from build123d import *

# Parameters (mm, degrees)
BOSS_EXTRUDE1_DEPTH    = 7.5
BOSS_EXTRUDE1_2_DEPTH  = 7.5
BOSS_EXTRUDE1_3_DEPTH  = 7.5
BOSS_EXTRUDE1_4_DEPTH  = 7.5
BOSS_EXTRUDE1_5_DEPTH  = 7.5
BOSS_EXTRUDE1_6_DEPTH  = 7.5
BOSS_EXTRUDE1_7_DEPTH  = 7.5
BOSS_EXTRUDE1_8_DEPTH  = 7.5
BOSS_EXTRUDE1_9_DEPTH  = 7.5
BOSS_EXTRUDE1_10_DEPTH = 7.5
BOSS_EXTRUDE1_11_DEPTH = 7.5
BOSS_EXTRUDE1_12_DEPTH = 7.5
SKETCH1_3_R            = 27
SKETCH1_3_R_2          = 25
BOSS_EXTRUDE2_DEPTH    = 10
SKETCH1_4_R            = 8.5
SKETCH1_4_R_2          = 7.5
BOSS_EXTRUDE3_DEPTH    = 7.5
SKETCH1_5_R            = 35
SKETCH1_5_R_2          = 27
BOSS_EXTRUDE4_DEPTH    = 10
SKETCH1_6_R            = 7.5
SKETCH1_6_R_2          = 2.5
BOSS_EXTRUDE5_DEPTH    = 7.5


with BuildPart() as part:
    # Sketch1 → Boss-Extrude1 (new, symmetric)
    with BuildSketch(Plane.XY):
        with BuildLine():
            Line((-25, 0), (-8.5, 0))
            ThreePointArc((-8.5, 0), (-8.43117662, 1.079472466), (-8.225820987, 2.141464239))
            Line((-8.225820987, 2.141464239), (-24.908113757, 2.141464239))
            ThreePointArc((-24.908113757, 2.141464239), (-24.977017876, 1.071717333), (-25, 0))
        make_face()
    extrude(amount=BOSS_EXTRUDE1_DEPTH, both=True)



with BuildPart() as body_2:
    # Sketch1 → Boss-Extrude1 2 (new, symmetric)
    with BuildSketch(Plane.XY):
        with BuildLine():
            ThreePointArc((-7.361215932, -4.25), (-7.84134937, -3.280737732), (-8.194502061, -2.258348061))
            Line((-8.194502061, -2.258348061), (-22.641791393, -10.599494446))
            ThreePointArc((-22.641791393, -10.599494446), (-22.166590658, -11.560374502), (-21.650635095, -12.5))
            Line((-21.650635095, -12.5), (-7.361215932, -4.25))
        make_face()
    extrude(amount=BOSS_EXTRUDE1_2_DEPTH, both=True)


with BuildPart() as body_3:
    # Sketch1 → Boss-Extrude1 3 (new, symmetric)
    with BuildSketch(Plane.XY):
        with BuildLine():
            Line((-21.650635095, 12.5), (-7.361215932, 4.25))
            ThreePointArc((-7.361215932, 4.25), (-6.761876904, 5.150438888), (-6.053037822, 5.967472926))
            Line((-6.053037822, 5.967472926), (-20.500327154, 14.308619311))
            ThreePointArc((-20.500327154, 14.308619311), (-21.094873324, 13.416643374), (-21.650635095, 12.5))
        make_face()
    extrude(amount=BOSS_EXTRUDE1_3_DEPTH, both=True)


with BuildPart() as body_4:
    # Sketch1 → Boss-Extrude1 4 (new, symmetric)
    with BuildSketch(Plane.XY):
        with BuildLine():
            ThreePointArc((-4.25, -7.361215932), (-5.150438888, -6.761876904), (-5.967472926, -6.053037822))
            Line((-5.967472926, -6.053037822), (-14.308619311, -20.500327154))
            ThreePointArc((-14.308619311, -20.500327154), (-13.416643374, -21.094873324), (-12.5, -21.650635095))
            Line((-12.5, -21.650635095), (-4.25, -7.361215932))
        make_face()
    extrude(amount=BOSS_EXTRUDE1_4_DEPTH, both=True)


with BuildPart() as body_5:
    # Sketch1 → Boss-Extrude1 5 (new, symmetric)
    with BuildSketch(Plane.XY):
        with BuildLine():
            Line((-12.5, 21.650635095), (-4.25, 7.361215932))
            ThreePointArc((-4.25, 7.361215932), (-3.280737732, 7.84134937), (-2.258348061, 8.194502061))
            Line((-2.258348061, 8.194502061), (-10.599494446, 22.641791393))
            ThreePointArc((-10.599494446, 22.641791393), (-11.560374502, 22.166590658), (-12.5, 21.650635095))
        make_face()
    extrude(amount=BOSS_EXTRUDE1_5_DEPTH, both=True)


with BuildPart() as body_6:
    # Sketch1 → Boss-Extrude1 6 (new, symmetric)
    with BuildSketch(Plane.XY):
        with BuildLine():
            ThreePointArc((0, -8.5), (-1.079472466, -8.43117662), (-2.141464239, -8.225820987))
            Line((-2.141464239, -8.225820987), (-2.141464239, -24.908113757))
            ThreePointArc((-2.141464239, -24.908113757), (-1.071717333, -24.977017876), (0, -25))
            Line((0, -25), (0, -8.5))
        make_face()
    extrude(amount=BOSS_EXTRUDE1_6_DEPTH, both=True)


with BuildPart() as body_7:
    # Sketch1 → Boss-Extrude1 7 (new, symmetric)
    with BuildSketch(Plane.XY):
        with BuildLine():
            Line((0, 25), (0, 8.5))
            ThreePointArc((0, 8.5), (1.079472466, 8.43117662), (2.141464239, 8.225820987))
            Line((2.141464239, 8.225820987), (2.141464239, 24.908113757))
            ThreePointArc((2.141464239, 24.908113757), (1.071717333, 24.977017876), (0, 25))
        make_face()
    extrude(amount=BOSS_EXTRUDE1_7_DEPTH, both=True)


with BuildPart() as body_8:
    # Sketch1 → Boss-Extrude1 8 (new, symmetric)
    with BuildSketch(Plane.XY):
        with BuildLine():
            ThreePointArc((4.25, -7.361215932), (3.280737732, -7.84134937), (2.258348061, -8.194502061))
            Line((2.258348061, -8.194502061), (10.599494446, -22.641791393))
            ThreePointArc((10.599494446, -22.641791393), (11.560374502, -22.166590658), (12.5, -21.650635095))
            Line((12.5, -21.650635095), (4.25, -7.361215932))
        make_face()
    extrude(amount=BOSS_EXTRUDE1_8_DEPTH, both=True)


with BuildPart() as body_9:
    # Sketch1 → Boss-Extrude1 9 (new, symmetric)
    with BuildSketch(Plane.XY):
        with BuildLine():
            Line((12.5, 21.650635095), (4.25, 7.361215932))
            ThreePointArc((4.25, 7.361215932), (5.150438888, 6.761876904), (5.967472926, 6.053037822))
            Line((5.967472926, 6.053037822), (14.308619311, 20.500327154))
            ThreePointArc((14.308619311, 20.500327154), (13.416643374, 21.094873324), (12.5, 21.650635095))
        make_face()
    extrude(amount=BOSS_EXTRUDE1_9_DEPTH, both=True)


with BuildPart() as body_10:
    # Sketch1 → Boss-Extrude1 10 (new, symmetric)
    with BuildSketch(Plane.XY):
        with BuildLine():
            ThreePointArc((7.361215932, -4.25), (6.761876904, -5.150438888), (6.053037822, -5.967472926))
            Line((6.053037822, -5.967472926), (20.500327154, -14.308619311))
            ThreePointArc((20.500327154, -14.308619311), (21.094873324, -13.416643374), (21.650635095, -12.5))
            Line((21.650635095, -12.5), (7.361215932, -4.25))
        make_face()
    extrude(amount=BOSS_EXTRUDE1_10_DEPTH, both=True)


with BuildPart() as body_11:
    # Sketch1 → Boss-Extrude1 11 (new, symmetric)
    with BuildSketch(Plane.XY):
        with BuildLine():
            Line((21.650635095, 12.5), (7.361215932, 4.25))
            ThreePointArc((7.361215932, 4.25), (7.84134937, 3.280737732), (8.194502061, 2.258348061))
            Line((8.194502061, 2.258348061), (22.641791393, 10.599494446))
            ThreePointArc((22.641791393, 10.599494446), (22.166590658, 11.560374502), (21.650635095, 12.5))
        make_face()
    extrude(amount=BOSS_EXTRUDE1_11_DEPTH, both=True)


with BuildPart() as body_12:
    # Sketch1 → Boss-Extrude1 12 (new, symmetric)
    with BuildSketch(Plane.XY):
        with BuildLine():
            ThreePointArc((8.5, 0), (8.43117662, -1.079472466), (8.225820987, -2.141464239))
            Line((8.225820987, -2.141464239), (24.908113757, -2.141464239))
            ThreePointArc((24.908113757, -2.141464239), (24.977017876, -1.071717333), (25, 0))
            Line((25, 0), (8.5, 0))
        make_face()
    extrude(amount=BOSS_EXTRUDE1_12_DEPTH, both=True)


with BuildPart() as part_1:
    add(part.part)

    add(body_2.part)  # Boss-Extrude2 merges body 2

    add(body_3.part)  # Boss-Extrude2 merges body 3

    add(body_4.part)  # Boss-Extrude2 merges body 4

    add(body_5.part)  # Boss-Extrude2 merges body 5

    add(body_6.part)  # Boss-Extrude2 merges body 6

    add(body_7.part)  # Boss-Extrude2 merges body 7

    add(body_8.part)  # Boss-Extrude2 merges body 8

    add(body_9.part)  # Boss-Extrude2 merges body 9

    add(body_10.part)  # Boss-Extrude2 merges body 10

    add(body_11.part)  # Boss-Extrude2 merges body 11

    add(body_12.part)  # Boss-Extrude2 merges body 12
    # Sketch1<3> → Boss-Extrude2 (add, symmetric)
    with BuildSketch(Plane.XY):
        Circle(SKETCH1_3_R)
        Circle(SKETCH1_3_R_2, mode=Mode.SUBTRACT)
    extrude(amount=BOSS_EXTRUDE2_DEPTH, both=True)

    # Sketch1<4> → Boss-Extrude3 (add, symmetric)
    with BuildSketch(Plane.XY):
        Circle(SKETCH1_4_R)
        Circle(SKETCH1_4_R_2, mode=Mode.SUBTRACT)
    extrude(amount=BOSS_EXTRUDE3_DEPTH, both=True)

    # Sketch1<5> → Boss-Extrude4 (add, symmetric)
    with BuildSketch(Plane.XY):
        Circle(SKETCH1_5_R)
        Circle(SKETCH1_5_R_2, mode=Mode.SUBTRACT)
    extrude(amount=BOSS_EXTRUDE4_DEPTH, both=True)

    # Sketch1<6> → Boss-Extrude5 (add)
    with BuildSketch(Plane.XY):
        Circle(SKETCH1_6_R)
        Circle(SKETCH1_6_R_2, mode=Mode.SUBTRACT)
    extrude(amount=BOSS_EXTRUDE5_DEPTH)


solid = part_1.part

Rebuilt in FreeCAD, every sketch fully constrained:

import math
import FreeCAD as App
import Part
import Sketcher
Q = App.Units.Quantity

doc = App.newDocument("Part")
params = doc.addObject("Spreadsheet::Sheet", "Params")
for row, (alias, value) in enumerate([
    ("sketch1_radius", "25 mm"),
    ("sketch1_radius2", "8.5 mm"),
    ("pad1_length", "15 mm"),
    ("sketch2_radius", "25 mm"),
    ("sketch2_radius2", "8.5 mm"),
    ("pad2_length", "15 mm"),
    ("sketch3_radius", "25.000001 mm"),
    ("sketch3_radius2", "8.5 mm"),
    ("pad3_length", "15 mm"),
    ("sketch4_radius", "25.000001 mm"),
    ("sketch4_radius2", "8.5 mm"),
    ("pad4_length", "15 mm"),
    ("sketch5_radius", "25 mm"),
    ("sketch5_radius2", "8.5 mm"),
    ("pad5_length", "15 mm"),
    ("sketch6_radius", "25 mm"),
    ("sketch6_radius2", "8.5 mm"),
    ("pad6_length", "15 mm"),
    ("sketch7_radius", "25 mm"),
    ("sketch7_radius2", "8.5 mm"),
    ("pad7_length", "15 mm"),
    ("sketch8_radius", "25 mm"),
    ("sketch8_radius2", "8.5 mm"),
    ("pad8_length", "15 mm"),
    ("sketch9_radius", "25.000001 mm"),
    ("sketch9_radius2", "8.5 mm"),
    ("pad9_length", "15 mm"),
    ("sketch10_radius", "25.000001 mm"),
    ("sketch10_radius2", "8.5 mm"),
    ("pad10_length", "15 mm"),
    ("sketch11_radius", "25 mm"),
    ("sketch11_radius2", "8.5 mm"),
    ("pad11_length", "15 mm"),
    ("sketch12_radius", "25 mm"),
    ("sketch12_radius2", "8.5 mm"),
    ("pad12_length", "15 mm"),
    ("sketch13_diameter", "54 mm"),
    ("sketch13_diameter2", "50 mm"),
    ("pad13_length", "20 mm"),
    ("sketch14_diameter", "17 mm"),
    ("sketch14_diameter2", "15 mm"),
    ("pad14_length", "15 mm"),
    ("sketch15_diameter", "70 mm"),
    ("sketch15_diameter2", "54 mm"),
    ("pad15_length", "20 mm"),
    ("sketch16_diameter", "15 mm"),
    ("sketch16_diameter2", "5 mm"),
    ("pad16_length", "7.5 mm"),
], start=1):
    params.set(f"A{row}", alias)
    params.set(f"B{row}", "=" + value)
    params.setAlias(f"B{row}", alias)

body = doc.addObject("PartDesign::Body", "Body")

sketch1 = doc.addObject("Sketcher::SketchObject", "Sketch")
body.addObject(sketch1)
sketch1.AttachmentSupport = (doc.XY_Plane, [""])
sketch1.MapMode = "FlatFace"
sketch1.addGeometry([
    Part.LineSegment(App.Vector(-25, 0, 0), App.Vector(-8.5, 0, 0)),
    Part.ArcOfCircle(Part.Circle(App.Vector(0, 0, 0), App.Vector(0, 0, 1), 8.5), math.radians(165.41), math.radians(180)),
    Part.LineSegment(App.Vector(-8.2, 2.1, 0), App.Vector(-24.9, 2.1, 0)),
    Part.ArcOfCircle(Part.Circle(App.Vector(0, 0, 0), App.Vector(0, 0, 1), 25), math.radians(175.09), math.radians(180)),
], False)
sketch1.addConstraint([
    Sketcher.Constraint("Coincident", 0, 2, 1, 2),
    Sketcher.Constraint("Coincident", 1, 1, 2, 1),
    Sketcher.Constraint("Coincident", 2, 2, 3, 1),
    Sketcher.Constraint("Coincident", 3, 2, 0, 1),
    Sketcher.Constraint("Horizontal", 0),
    Sketcher.Constraint("Horizontal", 2),
    Sketcher.Constraint("Coincident", 1, 3, -1, 1),
    Sketcher.Constraint("Coincident", 3, 3, -1, 1),
    Sketcher.Constraint("PointOnObject", 0, 2, -1),
    Sketcher.Constraint("Radius", 3, Q("25 mm")),
    Sketcher.Constraint("Radius", 1, Q("8.5 mm")),
    Sketcher.Constraint("DistanceX", 2, 2, 2, 1, Q("16.682293 mm")),
])
sketch1.setExpression("Constraints[9]", "Params.sketch1_radius")
sketch1.setExpression("Constraints[10]", "Params.sketch1_radius2")
pad1 = doc.addObject("PartDesign::Pad", "Pad")
body.addObject(pad1)
pad1.Profile = sketch1
pad1.setExpression("Length", "Params.pad1_length")
pad1.Midplane = True
body2 = doc.addObject("PartDesign::Body", "Body001")

sketch2 = doc.addObject("Sketcher::SketchObject", "Sketch001")
body2.addObject(sketch2)
sketch2.AttachmentSupport = (doc.getObject("XY_Plane001"), [""])
sketch2.MapMode = "FlatFace"
sketch2.addGeometry([
    Part.ArcOfCircle(Part.Circle(App.Vector(0, 0, 0), App.Vector(0, 0, 1), 8.5), math.radians(-164.59), math.radians(-150)),
    Part.LineSegment(App.Vector(-8.2, -2.3, 0), App.Vector(-22.6, -10.6, 0)),
    Part.ArcOfCircle(Part.Circle(App.Vector(0, 0, 0), App.Vector(0, 0, 1), 25), math.radians(-154.91), math.radians(-150)),
    Part.LineSegment(App.Vector(-21.7, -12.5, 0), App.Vector(-7.4, -4.2, 0)),
], False)
sketch2.addConstraint([
    Sketcher.Constraint("Coincident", 0, 1, 1, 1),
    Sketcher.Constraint("Coincident", 1, 2, 2, 1),
    Sketcher.Constraint("Coincident", 2, 2, 3, 1),
    Sketcher.Constraint("Coincident", 3, 2, 0, 2),
    Sketcher.Constraint("Coincident", 0, 3, -1, 1),
    Sketcher.Constraint("Coincident", 2, 3, -1, 1),
    Sketcher.Constraint("Parallel", 1, 3),
    Sketcher.Constraint("Radius", 2, Q("25 mm")),
    Sketcher.Constraint("Radius", 0, Q("8.5 mm")),
    Sketcher.Constraint("Angle", 1, Q("-150 deg")),
    Sketcher.Constraint("DistanceY", 2, 2, -1, 1, Q("12.5 mm")),
    Sketcher.Constraint("DistanceX", 0, 1, 2, 3, Q("8.194502 mm")),
])
sketch2.setExpression("Constraints[7]", "Params.sketch2_radius")
sketch2.setExpression("Constraints[8]", "Params.sketch2_radius2")
pad2 = doc.addObject("PartDesign::Pad", "Pad001")
body2.addObject(pad2)
pad2.Profile = sketch2
pad2.setExpression("Length", "Params.pad2_length")
pad2.Midplane = True
body3 = doc.addObject("PartDesign::Body", "Body002")

sketch3 = doc.addObject("Sketcher::SketchObject", "Sketch002")
body3.addObject(sketch3)
sketch3.AttachmentSupport = (doc.getObject("XY_Plane002"), [""])
sketch3.MapMode = "FlatFace"
sketch3.addGeometry([
    Part.LineSegment(App.Vector(-21.7, 12.5, 0), App.Vector(-7.4, 4.2, 0)),
    Part.ArcOfCircle(Part.Circle(App.Vector(0, 0, 0), App.Vector(0, 0, 1), 8.5), math.radians(135.41), math.radians(150)),
    Part.LineSegment(App.Vector(-6.1, 6, 0), App.Vector(-20.5, 14.3, 0)),
    Part.ArcOfCircle(Part.Circle(App.Vector(0, 0, 0), App.Vector(0, 0, 1), 25), math.radians(145.09), math.radians(150)),
], False)
sketch3.addConstraint([
    Sketcher.Constraint("Coincident", 0, 2, 1, 2),
    Sketcher.Constraint("Coincident", 1, 1, 2, 1),
    Sketcher.Constraint("Coincident", 2, 2, 3, 1),
    Sketcher.Constraint("Coincident", 3, 2, 0, 1),
    Sketcher.Constraint("Coincident", 1, 3, -1, 1),
    Sketcher.Constraint("Coincident", 3, 3, -1, 1),
    Sketcher.Constraint("Parallel", 0, 2),
    Sketcher.Constraint("Radius", 3, Q("25.000001 mm")),
    Sketcher.Constraint("Radius", 1, Q("8.5 mm")),
    Sketcher.Constraint("Angle", 0, Q("-30 deg")),
    Sketcher.Constraint("DistanceY", -1, 1, 3, 2, Q("12.5 mm")),
    Sketcher.Constraint("DistanceY", -1, 1, 2, 2, Q("14.308619 mm")),
])
sketch3.setExpression("Constraints[7]", "Params.sketch3_radius")
sketch3.setExpression("Constraints[8]", "Params.sketch3_radius2")
pad3 = doc.addObject("PartDesign::Pad", "Pad002")
body3.addObject(pad3)
pad3.Profile = sketch3
pad3.setExpression("Length", "Params.pad3_length")
pad3.Midplane = True
body4 = doc.addObject("PartDesign::Body", "Body003")

sketch4 = doc.addObject("Sketcher::SketchObject", "Sketch003")
body4.addObject(sketch4)
sketch4.AttachmentSupport = (doc.getObject("XY_Plane003"), [""])
sketch4.MapMode = "FlatFace"
sketch4.addGeometry([
    Part.ArcOfCircle(Part.Circle(App.Vector(0, 0, 0), App.Vector(0, 0, 1), 8.5), math.radians(-134.59), math.radians(-120)),
    Part.LineSegment(App.Vector(-6, -6.1, 0), App.Vector(-14.3, -20.5, 0)),
    Part.ArcOfCircle(Part.Circle(App.Vector(0, 0, 0), App.Vector(0, 0, 1), 25), math.radians(-124.91), math.radians(-120)),
    Part.LineSegment(App.Vector(-12.5, -21.7, 0), App.Vector(-4.2, -7.4, 0)),
], False)
sketch4.addConstraint([
    Sketcher.Constraint("Coincident", 0, 1, 1, 1),
    Sketcher.Constraint("Coincident", 1, 2, 2, 1),
    Sketcher.Constraint("Coincident", 2, 2, 3, 1),
    Sketcher.Constraint("Coincident", 3, 2, 0, 2),
    Sketcher.Constraint("Coincident", 0, 3, -1, 1),
    Sketcher.Constraint("Coincident", 2, 3, -1, 1),
    Sketcher.Constraint("Parallel", 1, 3),
    Sketcher.Constraint("Radius", 2, Q("25.000001 mm")),
    Sketcher.Constraint("Radius", 0, Q("8.5 mm")),
    Sketcher.Constraint("Angle", 1, Q("-120 deg")),
    Sketcher.Constraint("DistanceX", 2, 2, -1, 1, Q("12.5 mm")),
    Sketcher.Constraint("DistanceX", 1, 2, -1, 1, Q("14.308619 mm")),
])
sketch4.setExpression("Constraints[7]", "Params.sketch4_radius")
sketch4.setExpression("Constraints[8]", "Params.sketch4_radius2")
pad4 = doc.addObject("PartDesign::Pad", "Pad003")
body4.addObject(pad4)
pad4.Profile = sketch4
pad4.setExpression("Length", "Params.pad4_length")
pad4.Midplane = True
body5 = doc.addObject("PartDesign::Body", "Body004")

sketch5 = doc.addObject("Sketcher::SketchObject", "Sketch004")
body5.addObject(sketch5)
sketch5.AttachmentSupport = (doc.getObject("XY_Plane004"), [""])
sketch5.MapMode = "FlatFace"
sketch5.addGeometry([
    Part.LineSegment(App.Vector(-12.5, 21.7, 0), App.Vector(-4.2, 7.4, 0)),
    Part.ArcOfCircle(Part.Circle(App.Vector(0, 0, 0), App.Vector(0, 0, 1), 8.5), math.radians(105.41), math.radians(120)),
    Part.LineSegment(App.Vector(-2.3, 8.2, 0), App.Vector(-10.6, 22.6, 0)),
    Part.ArcOfCircle(Part.Circle(App.Vector(0, 0, 0), App.Vector(0, 0, 1), 25), math.radians(115.09), math.radians(120)),
], False)
sketch5.addConstraint([
    Sketcher.Constraint("Coincident", 0, 2, 1, 2),
    Sketcher.Constraint("Coincident", 1, 1, 2, 1),
    Sketcher.Constraint("Coincident", 2, 2, 3, 1),
    Sketcher.Constraint("Coincident", 3, 2, 0, 1),
    Sketcher.Constraint("Coincident", 1, 3, -1, 1),
    Sketcher.Constraint("Coincident", 3, 3, -1, 1),
    Sketcher.Constraint("Parallel", 0, 2),
    Sketcher.Constraint("Radius", 3, Q("25 mm")),
    Sketcher.Constraint("Radius", 1, Q("8.5 mm")),
    Sketcher.Constraint("Angle", 0, Q("-60 deg")),
    Sketcher.Constraint("DistanceX", 3, 2, -1, 1, Q("12.5 mm")),
    Sketcher.Constraint("DistanceY", 3, 3, 1, 1, Q("8.194502 mm")),
])
sketch5.setExpression("Constraints[7]", "Params.sketch5_radius")
sketch5.setExpression("Constraints[8]", "Params.sketch5_radius2")
pad5 = doc.addObject("PartDesign::Pad", "Pad004")
body5.addObject(pad5)
pad5.Profile = sketch5
pad5.setExpression("Length", "Params.pad5_length")
pad5.Midplane = True
body6 = doc.addObject("PartDesign::Body", "Body005")

sketch6 = doc.addObject("Sketcher::SketchObject", "Sketch005")
body6.addObject(sketch6)
sketch6.AttachmentSupport = (doc.getObject("XY_Plane005"), [""])
sketch6.MapMode = "FlatFace"
sketch6.addGeometry([
    Part.ArcOfCircle(Part.Circle(App.Vector(0, 0, 0), App.Vector(0, 0, 1), 8.5), math.radians(-104.59), math.radians(-90)),
    Part.LineSegment(App.Vector(-2.1, -8.2, 0), App.Vector(-2.1, -24.9, 0)),
    Part.ArcOfCircle(Part.Circle(App.Vector(0, 0, 0), App.Vector(0, 0, 1), 25), math.radians(-94.91), math.radians(-90)),
    Part.LineSegment(App.Vector(0, -25, 0), App.Vector(0, -8.5, 0)),
], False)
sketch6.addConstraint([
    Sketcher.Constraint("Coincident", 0, 1, 1, 1),
    Sketcher.Constraint("Coincident", 1, 2, 2, 1),
    Sketcher.Constraint("Coincident", 2, 2, 3, 1),
    Sketcher.Constraint("Coincident", 3, 2, 0, 2),
    Sketcher.Constraint("Vertical", 1),
    Sketcher.Constraint("Vertical", 3),
    Sketcher.Constraint("Coincident", 0, 3, -1, 1),
    Sketcher.Constraint("Coincident", 2, 3, -1, 1),
    Sketcher.Constraint("PointOnObject", 2, 2, -2),
    Sketcher.Constraint("Radius", 2, Q("25 mm")),
    Sketcher.Constraint("Radius", 0, Q("8.5 mm")),
    Sketcher.Constraint("DistanceY", 1, 2, 1, 1, Q("16.682293 mm")),
])
sketch6.setExpression("Constraints[9]", "Params.sketch6_radius")
sketch6.setExpression("Constraints[10]", "Params.sketch6_radius2")
pad6 = doc.addObject("PartDesign::Pad", "Pad005")
body6.addObject(pad6)
pad6.Profile = sketch6
pad6.setExpression("Length", "Params.pad6_length")
pad6.Midplane = True
body7 = doc.addObject("PartDesign::Body", "Body006")

sketch7 = doc.addObject("Sketcher::SketchObject", "Sketch006")
body7.addObject(sketch7)
sketch7.AttachmentSupport = (doc.getObject("XY_Plane006"), [""])
sketch7.MapMode = "FlatFace"
sketch7.addGeometry([
    Part.LineSegment(App.Vector(0, 25, 0), App.Vector(0, 8.5, 0)),
    Part.ArcOfCircle(Part.Circle(App.Vector(0, 0, 0), App.Vector(0, 0, 1), 8.5), math.radians(75.41), math.radians(90)),
    Part.LineSegment(App.Vector(2.1, 8.2, 0), App.Vector(2.1, 24.9, 0)),
    Part.ArcOfCircle(Part.Circle(App.Vector(0, 0, 0), App.Vector(0, 0, 1), 25), math.radians(85.09), math.radians(90)),
], False)
sketch7.addConstraint([
    Sketcher.Constraint("Coincident", 0, 2, 1, 2),
    Sketcher.Constraint("Coincident", 1, 1, 2, 1),
    Sketcher.Constraint("Coincident", 2, 2, 3, 1),
    Sketcher.Constraint("Coincident", 3, 2, 0, 1),
    Sketcher.Constraint("Vertical", 0),
    Sketcher.Constraint("Vertical", 2),
    Sketcher.Constraint("Coincident", 1, 3, -1, 1),
    Sketcher.Constraint("Coincident", 3, 3, -1, 1),
    Sketcher.Constraint("PointOnObject", 0, 2, -2),
    Sketcher.Constraint("Radius", 3, Q("25 mm")),
    Sketcher.Constraint("Radius", 1, Q("8.5 mm")),
    Sketcher.Constraint("DistanceY", 2, 1, 2, 2, Q("16.682293 mm")),
])
sketch7.setExpression("Constraints[9]", "Params.sketch7_radius")
sketch7.setExpression("Constraints[10]", "Params.sketch7_radius2")
pad7 = doc.addObject("PartDesign::Pad", "Pad006")
body7.addObject(pad7)
pad7.Profile = sketch7
pad7.setExpression("Length", "Params.pad7_length")
pad7.Midplane = True
body8 = doc.addObject("PartDesign::Body", "Body007")

sketch8 = doc.addObject("Sketcher::SketchObject", "Sketch007")
body8.addObject(sketch8)
sketch8.AttachmentSupport = (doc.getObject("XY_Plane007"), [""])
sketch8.MapMode = "FlatFace"
sketch8.addGeometry([
    Part.ArcOfCircle(Part.Circle(App.Vector(0, 0, 0), App.Vector(0, 0, 1), 8.5), math.radians(-74.59), math.radians(-60)),
    Part.LineSegment(App.Vector(2.3, -8.2, 0), App.Vector(10.6, -22.6, 0)),
    Part.ArcOfCircle(Part.Circle(App.Vector(0, 0, 0), App.Vector(0, 0, 1), 25), math.radians(-64.91), math.radians(-60)),
    Part.LineSegment(App.Vector(12.5, -21.7, 0), App.Vector(4.2, -7.4, 0)),
], False)
sketch8.addConstraint([
    Sketcher.Constraint("Coincident", 0, 1, 1, 1),
    Sketcher.Constraint("Coincident", 1, 2, 2, 1),
    Sketcher.Constraint("Coincident", 2, 2, 3, 1),
    Sketcher.Constraint("Coincident", 3, 2, 0, 2),
    Sketcher.Constraint("Coincident", 0, 3, -1, 1),
    Sketcher.Constraint("Coincident", 2, 3, -1, 1),
    Sketcher.Constraint("Parallel", 1, 3),
    Sketcher.Constraint("Radius", 2, Q("25 mm")),
    Sketcher.Constraint("Radius", 0, Q("8.5 mm")),
    Sketcher.Constraint("Angle", 1, Q("-60 deg")),
    Sketcher.Constraint("DistanceX", -1, 1, 2, 2, Q("12.5 mm")),
    Sketcher.Constraint("DistanceY", 0, 1, 2, 3, Q("8.194502 mm")),
])
sketch8.setExpression("Constraints[7]", "Params.sketch8_radius")
sketch8.setExpression("Constraints[8]", "Params.sketch8_radius2")
pad8 = doc.addObject("PartDesign::Pad", "Pad007")
body8.addObject(pad8)
pad8.Profile = sketch8
pad8.setExpression("Length", "Params.pad8_length")
pad8.Midplane = True
body9 = doc.addObject("PartDesign::Body", "Body008")

sketch9 = doc.addObject("Sketcher::SketchObject", "Sketch008")
body9.addObject(sketch9)
sketch9.AttachmentSupport = (doc.getObject("XY_Plane008"), [""])
sketch9.MapMode = "FlatFace"
sketch9.addGeometry([
    Part.LineSegment(App.Vector(12.5, 21.7, 0), App.Vector(4.2, 7.4, 0)),
    Part.ArcOfCircle(Part.Circle(App.Vector(0, 0, 0), App.Vector(0, 0, 1), 8.5), math.radians(45.41), math.radians(60)),
    Part.LineSegment(App.Vector(6, 6.1, 0), App.Vector(14.3, 20.5, 0)),
    Part.ArcOfCircle(Part.Circle(App.Vector(0, 0, 0), App.Vector(0, 0, 1), 25), math.radians(55.09), math.radians(60)),
], False)
sketch9.addConstraint([
    Sketcher.Constraint("Coincident", 0, 2, 1, 2),
    Sketcher.Constraint("Coincident", 1, 1, 2, 1),
    Sketcher.Constraint("Coincident", 2, 2, 3, 1),
    Sketcher.Constraint("Coincident", 3, 2, 0, 1),
    Sketcher.Constraint("Coincident", 1, 3, -1, 1),
    Sketcher.Constraint("Coincident", 3, 3, -1, 1),
    Sketcher.Constraint("Parallel", 0, 2),
    Sketcher.Constraint("Radius", 3, Q("25.000001 mm")),
    Sketcher.Constraint("Radius", 1, Q("8.5 mm")),
    Sketcher.Constraint("Angle", 0, Q("-120 deg")),
    Sketcher.Constraint("DistanceX", -1, 1, 3, 2, Q("12.5 mm")),
    Sketcher.Constraint("DistanceX", -1, 1, 2, 2, Q("14.308619 mm")),
])
sketch9.setExpression("Constraints[7]", "Params.sketch9_radius")
sketch9.setExpression("Constraints[8]", "Params.sketch9_radius2")
pad9 = doc.addObject("PartDesign::Pad", "Pad008")
body9.addObject(pad9)
pad9.Profile = sketch9
pad9.setExpression("Length", "Params.pad9_length")
pad9.Midplane = True
body10 = doc.addObject("PartDesign::Body", "Body009")

sketch10 = doc.addObject("Sketcher::SketchObject", "Sketch009")
body10.addObject(sketch10)
sketch10.AttachmentSupport = (doc.getObject("XY_Plane009"), [""])
sketch10.MapMode = "FlatFace"
sketch10.addGeometry([
    Part.ArcOfCircle(Part.Circle(App.Vector(0, 0, 0), App.Vector(0, 0, 1), 8.5), math.radians(-44.59), math.radians(-30)),
    Part.LineSegment(App.Vector(6.1, -6, 0), App.Vector(20.5, -14.3, 0)),
    Part.ArcOfCircle(Part.Circle(App.Vector(0, 0, 0), App.Vector(0, 0, 1), 25), math.radians(-34.91), math.radians(-30)),
    Part.LineSegment(App.Vector(21.7, -12.5, 0), App.Vector(7.4, -4.2, 0)),
], False)
sketch10.addConstraint([
    Sketcher.Constraint("Coincident", 0, 1, 1, 1),
    Sketcher.Constraint("Coincident", 1, 2, 2, 1),
    Sketcher.Constraint("Coincident", 2, 2, 3, 1),
    Sketcher.Constraint("Coincident", 3, 2, 0, 2),
    Sketcher.Constraint("Coincident", 0, 3, -1, 1),
    Sketcher.Constraint("Coincident", 2, 3, -1, 1),
    Sketcher.Constraint("Parallel", 1, 3),
    Sketcher.Constraint("Radius", 2, Q("25.000001 mm")),
    Sketcher.Constraint("Radius", 0, Q("8.5 mm")),
    Sketcher.Constraint("Angle", 1, Q("-30 deg")),
    Sketcher.Constraint("DistanceY", 2, 2, -1, 1, Q("12.5 mm")),
    Sketcher.Constraint("DistanceY", 1, 2, -1, 1, Q("14.308619 mm")),
])
sketch10.setExpression("Constraints[7]", "Params.sketch10_radius")
sketch10.setExpression("Constraints[8]", "Params.sketch10_radius2")
pad10 = doc.addObject("PartDesign::Pad", "Pad009")
body10.addObject(pad10)
pad10.Profile = sketch10
pad10.setExpression("Length", "Params.pad10_length")
pad10.Midplane = True
body11 = doc.addObject("PartDesign::Body", "Body010")

sketch11 = doc.addObject("Sketcher::SketchObject", "Sketch010")
body11.addObject(sketch11)
sketch11.AttachmentSupport = (doc.getObject("XY_Plane010"), [""])
sketch11.MapMode = "FlatFace"
sketch11.addGeometry([
    Part.LineSegment(App.Vector(21.7, 12.5, 0), App.Vector(7.4, 4.2, 0)),
    Part.ArcOfCircle(Part.Circle(App.Vector(0, 0, 0), App.Vector(0, 0, 1), 8.5), math.radians(15.41), math.radians(30)),
    Part.LineSegment(App.Vector(8.2, 2.3, 0), App.Vector(22.6, 10.6, 0)),
    Part.ArcOfCircle(Part.Circle(App.Vector(0, 0, 0), App.Vector(0, 0, 1), 25), math.radians(25.09), math.radians(30)),
], False)
sketch11.addConstraint([
    Sketcher.Constraint("Coincident", 0, 2, 1, 2),
    Sketcher.Constraint("Coincident", 1, 1, 2, 1),
    Sketcher.Constraint("Coincident", 2, 2, 3, 1),
    Sketcher.Constraint("Coincident", 3, 2, 0, 1),
    Sketcher.Constraint("Coincident", 1, 3, -1, 1),
    Sketcher.Constraint("Coincident", 3, 3, -1, 1),
    Sketcher.Constraint("Parallel", 0, 2),
    Sketcher.Constraint("Radius", 3, Q("25 mm")),
    Sketcher.Constraint("Radius", 1, Q("8.5 mm")),
    Sketcher.Constraint("Angle", 0, Q("-150 deg")),
    Sketcher.Constraint("DistanceY", -1, 1, 3, 2, Q("12.5 mm")),
    Sketcher.Constraint("DistanceX", 3, 3, 1, 1, Q("8.194502 mm")),
])
sketch11.setExpression("Constraints[7]", "Params.sketch11_radius")
sketch11.setExpression("Constraints[8]", "Params.sketch11_radius2")
pad11 = doc.addObject("PartDesign::Pad", "Pad010")
body11.addObject(pad11)
pad11.Profile = sketch11
pad11.setExpression("Length", "Params.pad11_length")
pad11.Midplane = True
body12 = doc.addObject("PartDesign::Body", "Body011")

sketch12 = doc.addObject("Sketcher::SketchObject", "Sketch011")
body12.addObject(sketch12)
sketch12.AttachmentSupport = (doc.getObject("XY_Plane011"), [""])
sketch12.MapMode = "FlatFace"
sketch12.addGeometry([
    Part.ArcOfCircle(Part.Circle(App.Vector(0, 0, 0), App.Vector(0, 0, 1), 8.5), math.radians(-14.59), math.radians(0)),
    Part.LineSegment(App.Vector(8.2, -2.1, 0), App.Vector(24.9, -2.1, 0)),
    Part.ArcOfCircle(Part.Circle(App.Vector(0, 0, 0), App.Vector(0, 0, 1), 25), math.radians(-4.91), math.radians(0)),
    Part.LineSegment(App.Vector(25, 0, 0), App.Vector(8.5, 0, 0)),
], False)
sketch12.addConstraint([
    Sketcher.Constraint("Coincident", 0, 1, 1, 1),
    Sketcher.Constraint("Coincident", 1, 2, 2, 1),
    Sketcher.Constraint("Coincident", 2, 2, 3, 1),
    Sketcher.Constraint("Coincident", 3, 2, 0, 2),
    Sketcher.Constraint("Horizontal", 1),
    Sketcher.Constraint("Horizontal", 3),
    Sketcher.Constraint("Coincident", 0, 3, -1, 1),
    Sketcher.Constraint("Coincident", 2, 3, -1, 1),
    Sketcher.Constraint("PointOnObject", 2, 2, -1),
    Sketcher.Constraint("Radius", 2, Q("25 mm")),
    Sketcher.Constraint("Radius", 0, Q("8.5 mm")),
    Sketcher.Constraint("DistanceX", 1, 1, 1, 2, Q("16.682293 mm")),
])
sketch12.setExpression("Constraints[9]", "Params.sketch12_radius")
sketch12.setExpression("Constraints[10]", "Params.sketch12_radius2")
pad12 = doc.addObject("PartDesign::Pad", "Pad011")
body12.addObject(pad12)
pad12.Profile = sketch12
pad12.setExpression("Length", "Params.pad12_length")
pad12.Midplane = True
body.AllowCompound = True
doc.recompute()

boolean = doc.addObject("PartDesign::Boolean", "Boolean")
body.addObject(boolean)
boolean.Type = "Fuse"
boolean.addObjects([body2])
doc.recompute()

boolean2 = doc.addObject("PartDesign::Boolean", "Boolean001")
body.addObject(boolean2)
boolean2.Type = "Fuse"
boolean2.addObjects([body3])
doc.recompute()

boolean3 = doc.addObject("PartDesign::Boolean", "Boolean002")
body.addObject(boolean3)
boolean3.Type = "Fuse"
boolean3.addObjects([body4])
doc.recompute()

boolean4 = doc.addObject("PartDesign::Boolean", "Boolean003")
body.addObject(boolean4)
boolean4.Type = "Fuse"
boolean4.addObjects([body5])
doc.recompute()

boolean5 = doc.addObject("PartDesign::Boolean", "Boolean004")
body.addObject(boolean5)
boolean5.Type = "Fuse"
boolean5.addObjects([body6])
doc.recompute()

boolean6 = doc.addObject("PartDesign::Boolean", "Boolean005")
body.addObject(boolean6)
boolean6.Type = "Fuse"
boolean6.addObjects([body7])
doc.recompute()

boolean7 = doc.addObject("PartDesign::Boolean", "Boolean006")
body.addObject(boolean7)
boolean7.Type = "Fuse"
boolean7.addObjects([body8])
doc.recompute()

boolean8 = doc.addObject("PartDesign::Boolean", "Boolean007")
body.addObject(boolean8)
boolean8.Type = "Fuse"
boolean8.addObjects([body9])
doc.recompute()

boolean9 = doc.addObject("PartDesign::Boolean", "Boolean008")
body.addObject(boolean9)
boolean9.Type = "Fuse"
boolean9.addObjects([body10])
doc.recompute()

boolean10 = doc.addObject("PartDesign::Boolean", "Boolean009")
body.addObject(boolean10)
boolean10.Type = "Fuse"
boolean10.addObjects([body11])
doc.recompute()

boolean11 = doc.addObject("PartDesign::Boolean", "Boolean010")
body.addObject(boolean11)
boolean11.Type = "Fuse"
boolean11.addObjects([body12])

sketch13 = doc.addObject("Sketcher::SketchObject", "Sketch012")
body.addObject(sketch13)
sketch13.AttachmentSupport = (doc.XY_Plane, [""])
sketch13.MapMode = "FlatFace"
sketch13.addGeometry([
    Part.Circle(App.Vector(0, 0, 0), App.Vector(0, 0, 1), 27),
    Part.Circle(App.Vector(0, 0, 0), App.Vector(0, 0, 1), 25),
], False)
sketch13.addConstraint([
    Sketcher.Constraint("Coincident", 0, 3, -1, 1),
    Sketcher.Constraint("Coincident", 1, 3, -1, 1),
    Sketcher.Constraint("Diameter", 0, Q("54 mm")),
    Sketcher.Constraint("Diameter", 1, Q("50 mm")),
])
sketch13.setExpression("Constraints[2]", "Params.sketch13_diameter")
sketch13.setExpression("Constraints[3]", "Params.sketch13_diameter2")
pad13 = doc.addObject("PartDesign::Pad", "Pad012")
body.addObject(pad13)
pad13.Profile = sketch13
pad13.setExpression("Length", "Params.pad13_length")
pad13.Midplane = True

sketch14 = doc.addObject("Sketcher::SketchObject", "Sketch013")
body.addObject(sketch14)
sketch14.AttachmentSupport = (doc.XY_Plane, [""])
sketch14.MapMode = "FlatFace"
sketch14.addGeometry([
    Part.Circle(App.Vector(0, 0, 0), App.Vector(0, 0, 1), 8),
    Part.Circle(App.Vector(0, 0, 0), App.Vector(0, 0, 1), 8),
], False)
sketch14.addConstraint([
    Sketcher.Constraint("Coincident", 0, 3, -1, 1),
    Sketcher.Constraint("Coincident", 1, 3, -1, 1),
    Sketcher.Constraint("Diameter", 0, Q("17 mm")),
    Sketcher.Constraint("Diameter", 1, Q("15 mm")),
])
sketch14.setExpression("Constraints[2]", "Params.sketch14_diameter")
sketch14.setExpression("Constraints[3]", "Params.sketch14_diameter2")
pad14 = doc.addObject("PartDesign::Pad", "Pad013")
body.addObject(pad14)
pad14.Profile = sketch14
pad14.setExpression("Length", "Params.pad14_length")
pad14.Midplane = True

sketch15 = doc.addObject("Sketcher::SketchObject", "Sketch014")
body.addObject(sketch15)
sketch15.AttachmentSupport = (doc.XY_Plane, [""])
sketch15.MapMode = "FlatFace"
sketch15.addGeometry([
    Part.Circle(App.Vector(0, 0, 0), App.Vector(0, 0, 1), 35),
    Part.Circle(App.Vector(0, 0, 0), App.Vector(0, 0, 1), 27),
], False)
sketch15.addConstraint([
    Sketcher.Constraint("Coincident", 0, 3, -1, 1),
    Sketcher.Constraint("Coincident", 1, 3, -1, 1),
    Sketcher.Constraint("Diameter", 0, Q("70 mm")),
    Sketcher.Constraint("Diameter", 1, Q("54 mm")),
])
sketch15.setExpression("Constraints[2]", "Params.sketch15_diameter")
sketch15.setExpression("Constraints[3]", "Params.sketch15_diameter2")
pad15 = doc.addObject("PartDesign::Pad", "Pad014")
body.addObject(pad15)
pad15.Profile = sketch15
pad15.setExpression("Length", "Params.pad15_length")
pad15.Midplane = True

sketch16 = doc.addObject("Sketcher::SketchObject", "Sketch015")
body.addObject(sketch16)
sketch16.AttachmentSupport = (doc.XY_Plane, [""])
sketch16.MapMode = "FlatFace"
sketch16.addGeometry([
    Part.Circle(App.Vector(0, 0, 0), App.Vector(0, 0, 1), 7.5),
    Part.Circle(App.Vector(0, 0, 0), App.Vector(0, 0, 1), 2.5),
], False)
sketch16.addConstraint([
    Sketcher.Constraint("Coincident", 0, 3, -1, 1),
    Sketcher.Constraint("Coincident", 1, 3, -1, 1),
    Sketcher.Constraint("Diameter", 0, Q("15 mm")),
    Sketcher.Constraint("Diameter", 1, Q("5 mm")),
])
sketch16.setExpression("Constraints[2]", "Params.sketch16_diameter")
sketch16.setExpression("Constraints[3]", "Params.sketch16_diameter2")
pad16 = doc.addObject("PartDesign::Pad", "Pad015")
body.addObject(pad16)
pad16.Profile = sketch16
pad16.setExpression("Length", "Params.pad16_length")

doc.recompute()
